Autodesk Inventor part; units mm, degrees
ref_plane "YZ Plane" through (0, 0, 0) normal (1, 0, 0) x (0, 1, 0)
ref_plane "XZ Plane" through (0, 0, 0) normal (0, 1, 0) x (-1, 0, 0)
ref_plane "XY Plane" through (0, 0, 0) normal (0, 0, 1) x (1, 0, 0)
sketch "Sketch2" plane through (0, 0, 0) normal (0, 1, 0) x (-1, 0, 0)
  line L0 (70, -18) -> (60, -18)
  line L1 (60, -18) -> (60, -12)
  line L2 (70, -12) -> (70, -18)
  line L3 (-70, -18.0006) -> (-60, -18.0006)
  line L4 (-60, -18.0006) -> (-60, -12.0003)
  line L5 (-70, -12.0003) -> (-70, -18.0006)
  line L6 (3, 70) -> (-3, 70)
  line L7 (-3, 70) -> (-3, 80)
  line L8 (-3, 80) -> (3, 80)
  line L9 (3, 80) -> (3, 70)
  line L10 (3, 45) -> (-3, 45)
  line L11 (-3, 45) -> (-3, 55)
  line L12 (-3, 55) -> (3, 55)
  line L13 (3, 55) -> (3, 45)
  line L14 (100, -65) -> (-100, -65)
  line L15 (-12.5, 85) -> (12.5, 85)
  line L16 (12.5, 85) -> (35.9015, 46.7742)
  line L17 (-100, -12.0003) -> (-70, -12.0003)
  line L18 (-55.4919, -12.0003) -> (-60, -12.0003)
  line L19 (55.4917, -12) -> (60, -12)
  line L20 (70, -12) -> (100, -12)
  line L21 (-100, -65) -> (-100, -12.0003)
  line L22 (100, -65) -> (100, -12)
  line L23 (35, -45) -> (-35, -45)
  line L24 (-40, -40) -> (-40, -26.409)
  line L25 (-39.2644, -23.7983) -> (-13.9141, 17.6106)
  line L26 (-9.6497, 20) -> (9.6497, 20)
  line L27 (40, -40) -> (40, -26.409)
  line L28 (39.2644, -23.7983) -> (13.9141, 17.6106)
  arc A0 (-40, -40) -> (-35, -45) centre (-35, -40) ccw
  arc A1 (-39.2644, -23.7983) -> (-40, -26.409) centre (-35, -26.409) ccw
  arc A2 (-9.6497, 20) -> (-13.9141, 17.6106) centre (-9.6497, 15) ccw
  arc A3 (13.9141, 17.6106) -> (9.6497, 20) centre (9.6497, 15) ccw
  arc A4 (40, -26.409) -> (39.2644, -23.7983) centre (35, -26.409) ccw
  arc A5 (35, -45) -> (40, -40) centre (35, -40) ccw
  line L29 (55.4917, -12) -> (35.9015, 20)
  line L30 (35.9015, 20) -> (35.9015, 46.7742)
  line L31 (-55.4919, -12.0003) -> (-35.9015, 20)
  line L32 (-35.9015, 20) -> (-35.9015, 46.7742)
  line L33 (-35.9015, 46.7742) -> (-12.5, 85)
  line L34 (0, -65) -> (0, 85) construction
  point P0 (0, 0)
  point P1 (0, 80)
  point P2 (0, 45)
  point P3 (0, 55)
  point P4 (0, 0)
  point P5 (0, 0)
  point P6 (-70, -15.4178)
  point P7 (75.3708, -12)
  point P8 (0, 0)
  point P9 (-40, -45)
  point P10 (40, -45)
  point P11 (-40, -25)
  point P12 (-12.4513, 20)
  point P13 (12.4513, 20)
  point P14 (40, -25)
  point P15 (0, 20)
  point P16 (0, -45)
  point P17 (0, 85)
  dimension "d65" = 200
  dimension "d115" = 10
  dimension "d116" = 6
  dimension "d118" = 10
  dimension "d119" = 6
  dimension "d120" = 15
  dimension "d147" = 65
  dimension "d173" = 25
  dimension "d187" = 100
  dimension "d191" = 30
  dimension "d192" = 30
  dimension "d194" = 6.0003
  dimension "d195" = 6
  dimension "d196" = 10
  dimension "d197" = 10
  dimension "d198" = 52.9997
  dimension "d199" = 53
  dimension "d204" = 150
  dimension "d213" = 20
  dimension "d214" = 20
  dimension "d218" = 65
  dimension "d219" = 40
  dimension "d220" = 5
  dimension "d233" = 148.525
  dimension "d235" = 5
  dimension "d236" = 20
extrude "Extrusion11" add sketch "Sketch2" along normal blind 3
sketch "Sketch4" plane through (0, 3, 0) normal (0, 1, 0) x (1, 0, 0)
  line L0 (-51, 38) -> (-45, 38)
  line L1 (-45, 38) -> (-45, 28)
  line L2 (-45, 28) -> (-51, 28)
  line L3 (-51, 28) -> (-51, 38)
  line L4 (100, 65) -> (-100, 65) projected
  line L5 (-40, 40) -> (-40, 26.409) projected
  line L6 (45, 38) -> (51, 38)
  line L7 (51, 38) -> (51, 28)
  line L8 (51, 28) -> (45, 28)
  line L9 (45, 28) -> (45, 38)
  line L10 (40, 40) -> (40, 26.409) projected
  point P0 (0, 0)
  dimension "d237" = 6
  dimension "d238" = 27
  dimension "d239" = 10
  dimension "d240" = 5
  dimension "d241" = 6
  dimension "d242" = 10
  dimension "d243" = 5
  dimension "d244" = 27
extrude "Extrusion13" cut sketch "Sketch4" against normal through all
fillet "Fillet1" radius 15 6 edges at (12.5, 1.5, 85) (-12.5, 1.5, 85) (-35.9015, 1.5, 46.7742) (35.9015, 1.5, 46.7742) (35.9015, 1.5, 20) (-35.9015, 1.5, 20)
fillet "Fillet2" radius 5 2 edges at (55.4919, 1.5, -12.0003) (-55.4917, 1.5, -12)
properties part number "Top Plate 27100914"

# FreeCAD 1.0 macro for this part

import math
import FreeCAD as App
import Part
import Sketcher

V = App.Vector


def edges_at(feature, points):
    """Names of the edges that pass closest to the given points."""
    edges = feature.Shape.Edges
    near = lambda p: min(range(len(edges)), key=lambda i: edges[i].distToShape(Part.Vertex(*p))[0])
    return sorted({f"Edge{near(p) + 1}" for p in points})

doc = App.newDocument("Part")
body = doc.addObject("PartDesign::Body", "Body")

# Sketch on XZ plane
sketch1 = body.newObject("Sketcher::SketchObject", "Sketch")
sketch1.AttachmentSupport = (doc.getObject("XZ_Plane"), [""])
sketch1.MapMode = "FlatFace"
sketch1.addGeometry(Part.LineSegment(V(-70, -12, 0), V(-70, -18, 0)), False)
sketch1.addGeometry(Part.LineSegment(V(-70, -18, 0), V(-60, -18, 0)), False)
sketch1.addGeometry(Part.LineSegment(V(-60, -18, 0), V(-60, -12, 0)), False)
sketch1.addGeometry(Part.LineSegment(V(-60, -12, 0), V(-55.4917, -12, 0)), False)
sketch1.addGeometry(Part.LineSegment(V(-55.4917, -12, 0), V(-35.9015, 20, 0)), False)
sketch1.addGeometry(Part.LineSegment(V(-35.9015, 20, 0), V(-35.9015, 46.7742, 0)), False)
sketch1.addGeometry(Part.LineSegment(V(-35.9015, 46.7742, 0), V(-12.5, 85, 0)), False)
sketch1.addGeometry(Part.LineSegment(V(-12.5, 85, 0), V(12.5, 85, 0)), False)
sketch1.addGeometry(Part.LineSegment(V(12.5, 85, 0), V(35.9015, 46.7742, 0)), False)
sketch1.addGeometry(Part.LineSegment(V(35.9015, 46.7742, 0), V(35.9015, 20, 0)), False)
sketch1.addGeometry(Part.LineSegment(V(35.9015, 20, 0), V(55.4919, -12.0003, 0)), False)
sketch1.addGeometry(Part.LineSegment(V(55.4919, -12.0003, 0), V(60, -12.0003, 0)), False)
sketch1.addGeometry(Part.LineSegment(V(60, -12.0003, 0), V(60, -18.0006, 0)), False)
sketch1.addGeometry(Part.LineSegment(V(60, -18.0006, 0), V(70, -18.0006, 0)), False)
sketch1.addGeometry(Part.LineSegment(V(70, -18.0006, 0), V(70, -12.0003, 0)), False)
sketch1.addGeometry(Part.LineSegment(V(70, -12.0003, 0), V(100, -12.0003, 0)), False)
sketch1.addGeometry(Part.LineSegment(V(100, -12.0003, 0), V(100, -65, 0)), False)
sketch1.addGeometry(Part.LineSegment(V(100, -65, 0), V(-100, -65, 0)), False)
sketch1.addGeometry(Part.LineSegment(V(-100, -65, 0), V(-100, -12, 0)), False)
sketch1.addGeometry(Part.LineSegment(V(-100, -12, 0), V(-70, -12, 0)), False)
sketch1.addGeometry(Part.ArcOfCircle(Part.Circle(V(-35, -40, 0), V(0, 0, 1), 5), math.radians(180), math.radians(270)), False)
sketch1.addGeometry(Part.LineSegment(V(-35, -45, 0), V(35, -45, 0)), False)
sketch1.addGeometry(Part.ArcOfCircle(Part.Circle(V(35, -40, 0), V(0, 0, 1), 5), math.radians(-90), math.radians(0)), False)
sketch1.addGeometry(Part.LineSegment(V(40, -40, 0), V(40, -26.409, 0)), False)
sketch1.addGeometry(Part.ArcOfCircle(Part.Circle(V(35.001063, -26.408535, 0), V(0, 0, 1), 4.998937), math.radians(-0.005325), math.radians(31.477124)), False)
sketch1.addGeometry(Part.LineSegment(V(39.2644, -23.7983, 0), V(13.9141, 17.6106, 0)), False)
sketch1.addGeometry(Part.ArcOfCircle(Part.Circle(V(9.6497, 15, 0), V(0, 0, 1), 5), math.radians(31.474326), math.radians(90)), False)
sketch1.addGeometry(Part.LineSegment(V(9.6497, 20, 0), V(-9.6497, 20, 0)), False)
sketch1.addGeometry(Part.ArcOfCircle(Part.Circle(V(-9.6497, 15, 0), V(0, 0, 1), 5.000034), math.radians(90), math.radians(148.525674)), False)
sketch1.addGeometry(Part.LineSegment(V(-13.9141, 17.6106, 0), V(-39.2644, -23.7983, 0)), False)
sketch1.addGeometry(Part.ArcOfCircle(Part.Circle(V(-34.99885, -26.409159, 0), V(0, 0, 1), 5.00115), math.radians(148.530022), math.radians(179.998179)), False)
sketch1.addGeometry(Part.LineSegment(V(-40, -26.409, 0), V(-40, -40, 0)), False)
sketch1.addGeometry(Part.LineSegment(V(-3, 55, 0), V(-3, 45, 0)), False)
sketch1.addGeometry(Part.LineSegment(V(-3, 45, 0), V(3, 45, 0)), False)
sketch1.addGeometry(Part.LineSegment(V(3, 45, 0), V(3, 55, 0)), False)
sketch1.addGeometry(Part.LineSegment(V(3, 55, 0), V(-3, 55, 0)), False)
sketch1.addGeometry(Part.LineSegment(V(-3, 80, 0), V(-3, 70, 0)), False)
sketch1.addGeometry(Part.LineSegment(V(-3, 70, 0), V(3, 70, 0)), False)
sketch1.addGeometry(Part.LineSegment(V(3, 70, 0), V(3, 80, 0)), False)
sketch1.addGeometry(Part.LineSegment(V(3, 80, 0), V(-3, 80, 0)), False)
sketch1.addConstraint(Sketcher.Constraint("Coincident", 0, 2, 1, 1))
sketch1.addConstraint(Sketcher.Constraint("Coincident", 1, 2, 2, 1))
sketch1.addConstraint(Sketcher.Constraint("Coincident", 2, 2, 3, 1))
sketch1.addConstraint(Sketcher.Constraint("Coincident", 3, 2, 4, 1))
sketch1.addConstraint(Sketcher.Constraint("Coincident", 4, 2, 5, 1))
sketch1.addConstraint(Sketcher.Constraint("Coincident", 5, 2, 6, 1))
sketch1.addConstraint(Sketcher.Constraint("Coincident", 6, 2, 7, 1))
sketch1.addConstraint(Sketcher.Constraint("Coincident", 7, 2, 8, 1))
sketch1.addConstraint(Sketcher.Constraint("Coincident", 8, 2, 9, 1))
sketch1.addConstraint(Sketcher.Constraint("Coincident", 9, 2, 10, 1))
sketch1.addConstraint(Sketcher.Constraint("Coincident", 10, 2, 11, 1))
sketch1.addConstraint(Sketcher.Constraint("Coincident", 11, 2, 12, 1))
sketch1.addConstraint(Sketcher.Constraint("Coincident", 12, 2, 13, 1))
sketch1.addConstraint(Sketcher.Constraint("Coincident", 13, 2, 14, 1))
sketch1.addConstraint(Sketcher.Constraint("Coincident", 14, 2, 15, 1))
sketch1.addConstraint(Sketcher.Constraint("Coincident", 15, 2, 16, 1))
sketch1.addConstraint(Sketcher.Constraint("Coincident", 16, 2, 17, 1))
sketch1.addConstraint(Sketcher.Constraint("Coincident", 17, 2, 18, 1))
sketch1.addConstraint(Sketcher.Constraint("Coincident", 18, 2, 19, 1))
sketch1.addConstraint(Sketcher.Constraint("Coincident", 19, 2, 0, 1))
sketch1.addConstraint(Sketcher.Constraint("Coincident", 20, 2, 21, 1))
sketch1.addConstraint(Sketcher.Constraint("Coincident", 21, 2, 22, 1))
sketch1.addConstraint(Sketcher.Constraint("Coincident", 22, 2, 23, 1))
sketch1.addConstraint(Sketcher.Constraint("Coincident", 23, 2, 24, 1))
sketch1.addConstraint(Sketcher.Constraint("Coincident", 24, 2, 25, 1))
sketch1.addConstraint(Sketcher.Constraint("Coincident", 25, 2, 26, 1))
sketch1.addConstraint(Sketcher.Constraint("Coincident", 26, 2, 27, 1))
sketch1.addConstraint(Sketcher.Constraint("Coincident", 27, 2, 28, 1))
sketch1.addConstraint(Sketcher.Constraint("Coincident", 28, 2, 29, 1))
sketch1.addConstraint(Sketcher.Constraint("Coincident", 29, 2, 30, 1))
sketch1.addConstraint(Sketcher.Constraint("Coincident", 30, 2, 31, 1))
sketch1.addConstraint(Sketcher.Constraint("Coincident", 31, 2, 20, 1))
sketch1.addConstraint(Sketcher.Constraint("Coincident", 32, 2, 33, 1))
sketch1.addConstraint(Sketcher.Constraint("Coincident", 33, 2, 34, 1))
sketch1.addConstraint(Sketcher.Constraint("Coincident", 34, 2, 35, 1))
sketch1.addConstraint(Sketcher.Constraint("Coincident", 35, 2, 32, 1))
sketch1.addConstraint(Sketcher.Constraint("Coincident", 36, 2, 37, 1))
sketch1.addConstraint(Sketcher.Constraint("Coincident", 37, 2, 38, 1))
sketch1.addConstraint(Sketcher.Constraint("Coincident", 38, 2, 39, 1))
sketch1.addConstraint(Sketcher.Constraint("Coincident", 39, 2, 36, 1))
sketch1.addConstraint(Sketcher.Constraint("Vertical", 0))
sketch1.addConstraint(Sketcher.Constraint("Horizontal", 1))
sketch1.addConstraint(Sketcher.Constraint("Vertical", 2))
sketch1.addConstraint(Sketcher.Constraint("Horizontal", 3))
sketch1.addConstraint(Sketcher.Constraint("Vertical", 5))
sketch1.addConstraint(Sketcher.Constraint("Horizontal", 7))
sketch1.addConstraint(Sketcher.Constraint("Vertical", 9))
sketch1.addConstraint(Sketcher.Constraint("Horizontal", 11))
sketch1.addConstraint(Sketcher.Constraint("Vertical", 12))
sketch1.addConstraint(Sketcher.Constraint("Horizontal", 13))
sketch1.addConstraint(Sketcher.Constraint("Vertical", 14))
sketch1.addConstraint(Sketcher.Constraint("Horizontal", 15))
sketch1.addConstraint(Sketcher.Constraint("Vertical", 16))
sketch1.addConstraint(Sketcher.Constraint("Horizontal", 17))
sketch1.addConstraint(Sketcher.Constraint("Vertical", 18))
sketch1.addConstraint(Sketcher.Constraint("Horizontal", 19))
sketch1.addConstraint(Sketcher.Constraint("Horizontal", 21))
sketch1.addConstraint(Sketcher.Constraint("Vertical", 23))
sketch1.addConstraint(Sketcher.Constraint("Horizontal", 27))
sketch1.addConstraint(Sketcher.Constraint("Vertical", 31))
sketch1.addConstraint(Sketcher.Constraint("Vertical", 32))
sketch1.addConstraint(Sketcher.Constraint("Horizontal", 33))
sketch1.addConstraint(Sketcher.Constraint("Vertical", 34))
sketch1.addConstraint(Sketcher.Constraint("Horizontal", 35))
sketch1.addConstraint(Sketcher.Constraint("Vertical", 36))
sketch1.addConstraint(Sketcher.Constraint("Horizontal", 37))
sketch1.addConstraint(Sketcher.Constraint("Vertical", 38))
sketch1.addConstraint(Sketcher.Constraint("Horizontal", 39))
sketch1.addConstraint(Sketcher.Constraint("Radius", 20, 5.0))
sketch1.addConstraint(Sketcher.Constraint("Radius", 22, 5.0))
sketch1.addConstraint(Sketcher.Constraint("Radius", 26, 5.0))
sketch1.addConstraint(Sketcher.Constraint("Radius", 28, 5.0))
sketch1.addConstraint(Sketcher.Constraint("DistanceX", 1, 1, 1, 2, 10.0))
sketch1.addConstraint(Sketcher.Constraint("DistanceX", 7, 1, 7, 2, 25.0))
sketch1.addConstraint(Sketcher.Constraint("DistanceX", 13, 1, 13, 2, 10.0))
sketch1.addConstraint(Sketcher.Constraint("DistanceX", 15, 1, 15, 2, 30.0))
sketch1.addConstraint(Sketcher.Constraint("DistanceX", 17, 2, 17, 1, 200.0))
sketch1.addConstraint(Sketcher.Constraint("DistanceX", 19, 1, 19, 2, 30.0))
sketch1.addConstraint(Sketcher.Constraint("DistanceX", 33, 1, 33, 2, 6.0))
sketch1.addConstraint(Sketcher.Constraint("DistanceX", 37, 1, 37, 2, 6.0))
sketch1.addConstraint(Sketcher.Constraint("DistanceY", 0, 2, 0, 1, 6.0))
sketch1.addConstraint(Sketcher.Constraint("DistanceY", 2, 1, 2, 2, 6.0))
sketch1.addConstraint(Sketcher.Constraint("DistanceY", 18, 1, 18, 2, 53.0))
sketch1.addConstraint(Sketcher.Constraint("DistanceY", 32, 2, 32, 1, 10.0))
sketch1.addConstraint(Sketcher.Constraint("DistanceY", 36, 2, 36, 1, 10.0))
sketch1.addConstraint(Sketcher.Constraint("DistanceY", 20, 3, -1, 1, 40.0))
sketch1.addConstraint(Sketcher.Constraint("DistanceY", -1, 1, 26, 3, 15.0))
sketch1.addConstraint(Sketcher.Constraint("DistanceY", -1, 1, 4, 2, 20.0))
sketch1.addConstraint(Sketcher.Constraint("DistanceY", -1, 1, 9, 2, 20.0))
sketch1.addConstraint(Sketcher.Constraint("DistanceX", -1, 1, 15, 2, 100.0))
sketch1.addConstraint(Sketcher.Constraint("DistanceY", 16, 2, -1, 1, 65.0))
sketch1.addConstraint(Sketcher.Constraint("DistanceX", -1, 1, 22, 2, 40.0))
sketch1.addConstraint(Sketcher.Constraint("DistanceY", 22, 2, -1, 1, 40.0))
sketch1.addConstraint(Sketcher.Constraint("DistanceX", 30, 2, -1, 1, 40.0))
sketch1.addConstraint(Sketcher.Constraint("DistanceY", 31, 2, -1, 1, 40.0))
sketch1.addConstraint(Sketcher.Constraint("DistanceY", 4, 2, 6, 2, 65.0))
sketch1.addConstraint(Sketcher.Constraint("DistanceX", 1, 2, 20, 2, 25.0))
sketch1.addConstraint(Sketcher.Constraint("DistanceX", 21, 2, 12, 2, 25.0))
sketch1.addConstraint(Sketcher.Constraint("DistanceY", 27, 2, 32, 2, 25.0))
sketch1.addConstraint(Sketcher.Constraint("DistanceY", 35, 2, 36, 2, 15.0))
sketch1.addConstraint(Sketcher.Constraint("DistanceX", 36, 2, 34, 2, 6.0))
sketch1.addConstraint(Sketcher.Constraint("DistanceY", 12, 2, 12, 1, 6.0003))
sketch1.addConstraint(Sketcher.Constraint("DistanceY", 14, 1, 14, 2, 6.0003))
sketch1.addConstraint(Sketcher.Constraint("DistanceY", 16, 2, 16, 1, 52.9997))
sketch1.addConstraint(Sketcher.Constraint("DistanceX", 32, 2, -1, 1, 3.0))
sketch1.addConstraint(Sketcher.Constraint("Radius", 24, 4.999))
sketch1.addConstraint(Sketcher.Constraint("DistanceX", 30, 3, 24, 3, 70.0))
sketch1.addConstraint(Sketcher.Constraint("DistanceX", 6, 2, -1, 1, 12.5))
sketch1.addConstraint(Sketcher.Constraint("Distance", 6, 44.82))
sketch1.addConstraint(Sketcher.Constraint("Distance", 8, 44.82))
sketch1.addConstraint(Sketcher.Constraint("DistanceX", 11, 1, 11, 2, 4.508))
sketch1.addConstraint(Sketcher.Constraint("DistanceY", 23, 1, 23, 2, 13.591))
sketch1.addConstraint(Sketcher.Constraint("DistanceY", 31, 2, 31, 1, 13.591))
sketch1.addConstraint(Sketcher.Constraint("DistanceX", 3, 1, 3, 2, 4.5083))
sketch1.addConstraint(Sketcher.Constraint("DistanceX", 27, 2, 27, 1, 19.2994))
sketch1.addConstraint(Sketcher.Constraint("DistanceY", 5, 1, 5, 2, 26.7742))
sketch1.addConstraint(Sketcher.Constraint("DistanceY", 9, 2, 9, 1, 26.7742))
sketch1.addConstraint(Sketcher.Constraint("DistanceX", -1, 1, 25, 2, 13.914))
sketch1.addConstraint(Sketcher.Constraint("DistanceX", 28, 2, -1, 1, 13.914))
sketch1.addConstraint(Sketcher.Constraint("DistanceY", 24, 3, 12, 2, 8.408))
sketch1.addConstraint(Sketcher.Constraint("DistanceY", 24, 2, 10, 2, 11.798))
sketch1.addConstraint(Sketcher.Constraint("DistanceY", 24, 2, 25, 2, 41.409))
sketch1.addConstraint(Sketcher.Constraint("Distance", 29, 48.5524))
sketch1.addConstraint(Sketcher.Constraint("DistanceX", 28, 3, -1, 1, 9.6497))
sketch1.addConstraint(Sketcher.Constraint("DistanceY", 30, 3, -1, 1, 26.4092))
sketch1.addConstraint(Sketcher.Constraint("DistanceX", -1, 1, 26, 2, 9.6497))
pad1 = body.newObject("PartDesign::Pad", "Pad")
pad1.Profile = sketch1
pad1.Length = 3
pad1.Reversed = True

# Sketch on XZ plane
sketch2 = body.newObject("Sketcher::SketchObject", "Sketch001")
sketch2.AttachmentSupport = (doc.getObject("XZ_Plane"), [""])
sketch2.MapMode = "FlatFace"
sketch2.AttachmentOffset = App.Placement(V(0, 0, -3), App.Rotation())
sketch2.addGeometry(Part.LineSegment(V(-45, -38, 0), V(-51, -38, 0)), False)
sketch2.addGeometry(Part.LineSegment(V(-51, -38, 0), V(-51, -28, 0)), False)
sketch2.addGeometry(Part.LineSegment(V(-51, -28, 0), V(-45, -28, 0)), False)
sketch2.addGeometry(Part.LineSegment(V(-45, -28, 0), V(-45, -38, 0)), False)
sketch2.addGeometry(Part.LineSegment(V(51, -38, 0), V(45, -38, 0)), False)
sketch2.addGeometry(Part.LineSegment(V(45, -38, 0), V(45, -28, 0)), False)
sketch2.addGeometry(Part.LineSegment(V(45, -28, 0), V(51, -28, 0)), False)
sketch2.addGeometry(Part.LineSegment(V(51, -28, 0), V(51, -38, 0)), False)
sketch2.addConstraint(Sketcher.Constraint("Coincident", 0, 2, 1, 1))
sketch2.addConstraint(Sketcher.Constraint("Coincident", 1, 2, 2, 1))
sketch2.addConstraint(Sketcher.Constraint("Coincident", 2, 2, 3, 1))
sketch2.addConstraint(Sketcher.Constraint("Coincident", 3, 2, 0, 1))
sketch2.addConstraint(Sketcher.Constraint("Coincident", 4, 2, 5, 1))
sketch2.addConstraint(Sketcher.Constraint("Coincident", 5, 2, 6, 1))
sketch2.addConstraint(Sketcher.Constraint("Coincident", 6, 2, 7, 1))
sketch2.addConstraint(Sketcher.Constraint("Coincident", 7, 2, 4, 1))
sketch2.addConstraint(Sketcher.Constraint("Horizontal", 0))
sketch2.addConstraint(Sketcher.Constraint("Vertical", 1))
sketch2.addConstraint(Sketcher.Constraint("Horizontal", 2))
sketch2.addConstraint(Sketcher.Constraint("Vertical", 3))
sketch2.addConstraint(Sketcher.Constraint("Horizontal", 4))
sketch2.addConstraint(Sketcher.Constraint("Vertical", 5))
sketch2.addConstraint(Sketcher.Constraint("Horizontal", 6))
sketch2.addConstraint(Sketcher.Constraint("Vertical", 7))
sketch2.addConstraint(Sketcher.Constraint("Symmetric", 3, 2, 4, 2, -2))
sketch2.addConstraint(Sketcher.Constraint("Symmetric", 1, 2, 6, 2, -2))
sketch2.addConstraint(Sketcher.Constraint("DistanceX", 0, 2, 0, 1, 6.0))
sketch2.addConstraint(Sketcher.Constraint("DistanceY", 1, 1, 1, 2, 10.0))
sketch2.addConstraint(Sketcher.Constraint("DistanceX", 0, 2, -1, 1, 51.0))
sketch2.addConstraint(Sketcher.Constraint("DistanceY", 0, 2, -1, 1, 38.0))
pocket1 = body.newObject("PartDesign::Pocket", "Pocket")
pocket1.Profile = sketch2
pocket1.Type = "ThroughAll"
pocket1.Reversed = True
doc.recompute()

fillet = body.newObject("PartDesign::Fillet", "Fillet")
fillet.Base = (pocket1, edges_at(pocket1, [
    (12.5, 1.5, 85),
    (-12.5, 1.5, 85),
    (-35.901, 1.5, 46.774),
    (35.901, 1.5, 46.774),
    (35.901, 1.5, 20),
    (-35.901, 1.5, 20),
]))
fillet.Radius = 15
doc.recompute()

fillet2 = body.newObject("PartDesign::Fillet", "Fillet001")
fillet2.Base = (fillet, edges_at(fillet, [(55.492, 1.5, -12), (-55.492, 1.5, -12)]))
fillet2.Radius = 5

doc.recompute()
